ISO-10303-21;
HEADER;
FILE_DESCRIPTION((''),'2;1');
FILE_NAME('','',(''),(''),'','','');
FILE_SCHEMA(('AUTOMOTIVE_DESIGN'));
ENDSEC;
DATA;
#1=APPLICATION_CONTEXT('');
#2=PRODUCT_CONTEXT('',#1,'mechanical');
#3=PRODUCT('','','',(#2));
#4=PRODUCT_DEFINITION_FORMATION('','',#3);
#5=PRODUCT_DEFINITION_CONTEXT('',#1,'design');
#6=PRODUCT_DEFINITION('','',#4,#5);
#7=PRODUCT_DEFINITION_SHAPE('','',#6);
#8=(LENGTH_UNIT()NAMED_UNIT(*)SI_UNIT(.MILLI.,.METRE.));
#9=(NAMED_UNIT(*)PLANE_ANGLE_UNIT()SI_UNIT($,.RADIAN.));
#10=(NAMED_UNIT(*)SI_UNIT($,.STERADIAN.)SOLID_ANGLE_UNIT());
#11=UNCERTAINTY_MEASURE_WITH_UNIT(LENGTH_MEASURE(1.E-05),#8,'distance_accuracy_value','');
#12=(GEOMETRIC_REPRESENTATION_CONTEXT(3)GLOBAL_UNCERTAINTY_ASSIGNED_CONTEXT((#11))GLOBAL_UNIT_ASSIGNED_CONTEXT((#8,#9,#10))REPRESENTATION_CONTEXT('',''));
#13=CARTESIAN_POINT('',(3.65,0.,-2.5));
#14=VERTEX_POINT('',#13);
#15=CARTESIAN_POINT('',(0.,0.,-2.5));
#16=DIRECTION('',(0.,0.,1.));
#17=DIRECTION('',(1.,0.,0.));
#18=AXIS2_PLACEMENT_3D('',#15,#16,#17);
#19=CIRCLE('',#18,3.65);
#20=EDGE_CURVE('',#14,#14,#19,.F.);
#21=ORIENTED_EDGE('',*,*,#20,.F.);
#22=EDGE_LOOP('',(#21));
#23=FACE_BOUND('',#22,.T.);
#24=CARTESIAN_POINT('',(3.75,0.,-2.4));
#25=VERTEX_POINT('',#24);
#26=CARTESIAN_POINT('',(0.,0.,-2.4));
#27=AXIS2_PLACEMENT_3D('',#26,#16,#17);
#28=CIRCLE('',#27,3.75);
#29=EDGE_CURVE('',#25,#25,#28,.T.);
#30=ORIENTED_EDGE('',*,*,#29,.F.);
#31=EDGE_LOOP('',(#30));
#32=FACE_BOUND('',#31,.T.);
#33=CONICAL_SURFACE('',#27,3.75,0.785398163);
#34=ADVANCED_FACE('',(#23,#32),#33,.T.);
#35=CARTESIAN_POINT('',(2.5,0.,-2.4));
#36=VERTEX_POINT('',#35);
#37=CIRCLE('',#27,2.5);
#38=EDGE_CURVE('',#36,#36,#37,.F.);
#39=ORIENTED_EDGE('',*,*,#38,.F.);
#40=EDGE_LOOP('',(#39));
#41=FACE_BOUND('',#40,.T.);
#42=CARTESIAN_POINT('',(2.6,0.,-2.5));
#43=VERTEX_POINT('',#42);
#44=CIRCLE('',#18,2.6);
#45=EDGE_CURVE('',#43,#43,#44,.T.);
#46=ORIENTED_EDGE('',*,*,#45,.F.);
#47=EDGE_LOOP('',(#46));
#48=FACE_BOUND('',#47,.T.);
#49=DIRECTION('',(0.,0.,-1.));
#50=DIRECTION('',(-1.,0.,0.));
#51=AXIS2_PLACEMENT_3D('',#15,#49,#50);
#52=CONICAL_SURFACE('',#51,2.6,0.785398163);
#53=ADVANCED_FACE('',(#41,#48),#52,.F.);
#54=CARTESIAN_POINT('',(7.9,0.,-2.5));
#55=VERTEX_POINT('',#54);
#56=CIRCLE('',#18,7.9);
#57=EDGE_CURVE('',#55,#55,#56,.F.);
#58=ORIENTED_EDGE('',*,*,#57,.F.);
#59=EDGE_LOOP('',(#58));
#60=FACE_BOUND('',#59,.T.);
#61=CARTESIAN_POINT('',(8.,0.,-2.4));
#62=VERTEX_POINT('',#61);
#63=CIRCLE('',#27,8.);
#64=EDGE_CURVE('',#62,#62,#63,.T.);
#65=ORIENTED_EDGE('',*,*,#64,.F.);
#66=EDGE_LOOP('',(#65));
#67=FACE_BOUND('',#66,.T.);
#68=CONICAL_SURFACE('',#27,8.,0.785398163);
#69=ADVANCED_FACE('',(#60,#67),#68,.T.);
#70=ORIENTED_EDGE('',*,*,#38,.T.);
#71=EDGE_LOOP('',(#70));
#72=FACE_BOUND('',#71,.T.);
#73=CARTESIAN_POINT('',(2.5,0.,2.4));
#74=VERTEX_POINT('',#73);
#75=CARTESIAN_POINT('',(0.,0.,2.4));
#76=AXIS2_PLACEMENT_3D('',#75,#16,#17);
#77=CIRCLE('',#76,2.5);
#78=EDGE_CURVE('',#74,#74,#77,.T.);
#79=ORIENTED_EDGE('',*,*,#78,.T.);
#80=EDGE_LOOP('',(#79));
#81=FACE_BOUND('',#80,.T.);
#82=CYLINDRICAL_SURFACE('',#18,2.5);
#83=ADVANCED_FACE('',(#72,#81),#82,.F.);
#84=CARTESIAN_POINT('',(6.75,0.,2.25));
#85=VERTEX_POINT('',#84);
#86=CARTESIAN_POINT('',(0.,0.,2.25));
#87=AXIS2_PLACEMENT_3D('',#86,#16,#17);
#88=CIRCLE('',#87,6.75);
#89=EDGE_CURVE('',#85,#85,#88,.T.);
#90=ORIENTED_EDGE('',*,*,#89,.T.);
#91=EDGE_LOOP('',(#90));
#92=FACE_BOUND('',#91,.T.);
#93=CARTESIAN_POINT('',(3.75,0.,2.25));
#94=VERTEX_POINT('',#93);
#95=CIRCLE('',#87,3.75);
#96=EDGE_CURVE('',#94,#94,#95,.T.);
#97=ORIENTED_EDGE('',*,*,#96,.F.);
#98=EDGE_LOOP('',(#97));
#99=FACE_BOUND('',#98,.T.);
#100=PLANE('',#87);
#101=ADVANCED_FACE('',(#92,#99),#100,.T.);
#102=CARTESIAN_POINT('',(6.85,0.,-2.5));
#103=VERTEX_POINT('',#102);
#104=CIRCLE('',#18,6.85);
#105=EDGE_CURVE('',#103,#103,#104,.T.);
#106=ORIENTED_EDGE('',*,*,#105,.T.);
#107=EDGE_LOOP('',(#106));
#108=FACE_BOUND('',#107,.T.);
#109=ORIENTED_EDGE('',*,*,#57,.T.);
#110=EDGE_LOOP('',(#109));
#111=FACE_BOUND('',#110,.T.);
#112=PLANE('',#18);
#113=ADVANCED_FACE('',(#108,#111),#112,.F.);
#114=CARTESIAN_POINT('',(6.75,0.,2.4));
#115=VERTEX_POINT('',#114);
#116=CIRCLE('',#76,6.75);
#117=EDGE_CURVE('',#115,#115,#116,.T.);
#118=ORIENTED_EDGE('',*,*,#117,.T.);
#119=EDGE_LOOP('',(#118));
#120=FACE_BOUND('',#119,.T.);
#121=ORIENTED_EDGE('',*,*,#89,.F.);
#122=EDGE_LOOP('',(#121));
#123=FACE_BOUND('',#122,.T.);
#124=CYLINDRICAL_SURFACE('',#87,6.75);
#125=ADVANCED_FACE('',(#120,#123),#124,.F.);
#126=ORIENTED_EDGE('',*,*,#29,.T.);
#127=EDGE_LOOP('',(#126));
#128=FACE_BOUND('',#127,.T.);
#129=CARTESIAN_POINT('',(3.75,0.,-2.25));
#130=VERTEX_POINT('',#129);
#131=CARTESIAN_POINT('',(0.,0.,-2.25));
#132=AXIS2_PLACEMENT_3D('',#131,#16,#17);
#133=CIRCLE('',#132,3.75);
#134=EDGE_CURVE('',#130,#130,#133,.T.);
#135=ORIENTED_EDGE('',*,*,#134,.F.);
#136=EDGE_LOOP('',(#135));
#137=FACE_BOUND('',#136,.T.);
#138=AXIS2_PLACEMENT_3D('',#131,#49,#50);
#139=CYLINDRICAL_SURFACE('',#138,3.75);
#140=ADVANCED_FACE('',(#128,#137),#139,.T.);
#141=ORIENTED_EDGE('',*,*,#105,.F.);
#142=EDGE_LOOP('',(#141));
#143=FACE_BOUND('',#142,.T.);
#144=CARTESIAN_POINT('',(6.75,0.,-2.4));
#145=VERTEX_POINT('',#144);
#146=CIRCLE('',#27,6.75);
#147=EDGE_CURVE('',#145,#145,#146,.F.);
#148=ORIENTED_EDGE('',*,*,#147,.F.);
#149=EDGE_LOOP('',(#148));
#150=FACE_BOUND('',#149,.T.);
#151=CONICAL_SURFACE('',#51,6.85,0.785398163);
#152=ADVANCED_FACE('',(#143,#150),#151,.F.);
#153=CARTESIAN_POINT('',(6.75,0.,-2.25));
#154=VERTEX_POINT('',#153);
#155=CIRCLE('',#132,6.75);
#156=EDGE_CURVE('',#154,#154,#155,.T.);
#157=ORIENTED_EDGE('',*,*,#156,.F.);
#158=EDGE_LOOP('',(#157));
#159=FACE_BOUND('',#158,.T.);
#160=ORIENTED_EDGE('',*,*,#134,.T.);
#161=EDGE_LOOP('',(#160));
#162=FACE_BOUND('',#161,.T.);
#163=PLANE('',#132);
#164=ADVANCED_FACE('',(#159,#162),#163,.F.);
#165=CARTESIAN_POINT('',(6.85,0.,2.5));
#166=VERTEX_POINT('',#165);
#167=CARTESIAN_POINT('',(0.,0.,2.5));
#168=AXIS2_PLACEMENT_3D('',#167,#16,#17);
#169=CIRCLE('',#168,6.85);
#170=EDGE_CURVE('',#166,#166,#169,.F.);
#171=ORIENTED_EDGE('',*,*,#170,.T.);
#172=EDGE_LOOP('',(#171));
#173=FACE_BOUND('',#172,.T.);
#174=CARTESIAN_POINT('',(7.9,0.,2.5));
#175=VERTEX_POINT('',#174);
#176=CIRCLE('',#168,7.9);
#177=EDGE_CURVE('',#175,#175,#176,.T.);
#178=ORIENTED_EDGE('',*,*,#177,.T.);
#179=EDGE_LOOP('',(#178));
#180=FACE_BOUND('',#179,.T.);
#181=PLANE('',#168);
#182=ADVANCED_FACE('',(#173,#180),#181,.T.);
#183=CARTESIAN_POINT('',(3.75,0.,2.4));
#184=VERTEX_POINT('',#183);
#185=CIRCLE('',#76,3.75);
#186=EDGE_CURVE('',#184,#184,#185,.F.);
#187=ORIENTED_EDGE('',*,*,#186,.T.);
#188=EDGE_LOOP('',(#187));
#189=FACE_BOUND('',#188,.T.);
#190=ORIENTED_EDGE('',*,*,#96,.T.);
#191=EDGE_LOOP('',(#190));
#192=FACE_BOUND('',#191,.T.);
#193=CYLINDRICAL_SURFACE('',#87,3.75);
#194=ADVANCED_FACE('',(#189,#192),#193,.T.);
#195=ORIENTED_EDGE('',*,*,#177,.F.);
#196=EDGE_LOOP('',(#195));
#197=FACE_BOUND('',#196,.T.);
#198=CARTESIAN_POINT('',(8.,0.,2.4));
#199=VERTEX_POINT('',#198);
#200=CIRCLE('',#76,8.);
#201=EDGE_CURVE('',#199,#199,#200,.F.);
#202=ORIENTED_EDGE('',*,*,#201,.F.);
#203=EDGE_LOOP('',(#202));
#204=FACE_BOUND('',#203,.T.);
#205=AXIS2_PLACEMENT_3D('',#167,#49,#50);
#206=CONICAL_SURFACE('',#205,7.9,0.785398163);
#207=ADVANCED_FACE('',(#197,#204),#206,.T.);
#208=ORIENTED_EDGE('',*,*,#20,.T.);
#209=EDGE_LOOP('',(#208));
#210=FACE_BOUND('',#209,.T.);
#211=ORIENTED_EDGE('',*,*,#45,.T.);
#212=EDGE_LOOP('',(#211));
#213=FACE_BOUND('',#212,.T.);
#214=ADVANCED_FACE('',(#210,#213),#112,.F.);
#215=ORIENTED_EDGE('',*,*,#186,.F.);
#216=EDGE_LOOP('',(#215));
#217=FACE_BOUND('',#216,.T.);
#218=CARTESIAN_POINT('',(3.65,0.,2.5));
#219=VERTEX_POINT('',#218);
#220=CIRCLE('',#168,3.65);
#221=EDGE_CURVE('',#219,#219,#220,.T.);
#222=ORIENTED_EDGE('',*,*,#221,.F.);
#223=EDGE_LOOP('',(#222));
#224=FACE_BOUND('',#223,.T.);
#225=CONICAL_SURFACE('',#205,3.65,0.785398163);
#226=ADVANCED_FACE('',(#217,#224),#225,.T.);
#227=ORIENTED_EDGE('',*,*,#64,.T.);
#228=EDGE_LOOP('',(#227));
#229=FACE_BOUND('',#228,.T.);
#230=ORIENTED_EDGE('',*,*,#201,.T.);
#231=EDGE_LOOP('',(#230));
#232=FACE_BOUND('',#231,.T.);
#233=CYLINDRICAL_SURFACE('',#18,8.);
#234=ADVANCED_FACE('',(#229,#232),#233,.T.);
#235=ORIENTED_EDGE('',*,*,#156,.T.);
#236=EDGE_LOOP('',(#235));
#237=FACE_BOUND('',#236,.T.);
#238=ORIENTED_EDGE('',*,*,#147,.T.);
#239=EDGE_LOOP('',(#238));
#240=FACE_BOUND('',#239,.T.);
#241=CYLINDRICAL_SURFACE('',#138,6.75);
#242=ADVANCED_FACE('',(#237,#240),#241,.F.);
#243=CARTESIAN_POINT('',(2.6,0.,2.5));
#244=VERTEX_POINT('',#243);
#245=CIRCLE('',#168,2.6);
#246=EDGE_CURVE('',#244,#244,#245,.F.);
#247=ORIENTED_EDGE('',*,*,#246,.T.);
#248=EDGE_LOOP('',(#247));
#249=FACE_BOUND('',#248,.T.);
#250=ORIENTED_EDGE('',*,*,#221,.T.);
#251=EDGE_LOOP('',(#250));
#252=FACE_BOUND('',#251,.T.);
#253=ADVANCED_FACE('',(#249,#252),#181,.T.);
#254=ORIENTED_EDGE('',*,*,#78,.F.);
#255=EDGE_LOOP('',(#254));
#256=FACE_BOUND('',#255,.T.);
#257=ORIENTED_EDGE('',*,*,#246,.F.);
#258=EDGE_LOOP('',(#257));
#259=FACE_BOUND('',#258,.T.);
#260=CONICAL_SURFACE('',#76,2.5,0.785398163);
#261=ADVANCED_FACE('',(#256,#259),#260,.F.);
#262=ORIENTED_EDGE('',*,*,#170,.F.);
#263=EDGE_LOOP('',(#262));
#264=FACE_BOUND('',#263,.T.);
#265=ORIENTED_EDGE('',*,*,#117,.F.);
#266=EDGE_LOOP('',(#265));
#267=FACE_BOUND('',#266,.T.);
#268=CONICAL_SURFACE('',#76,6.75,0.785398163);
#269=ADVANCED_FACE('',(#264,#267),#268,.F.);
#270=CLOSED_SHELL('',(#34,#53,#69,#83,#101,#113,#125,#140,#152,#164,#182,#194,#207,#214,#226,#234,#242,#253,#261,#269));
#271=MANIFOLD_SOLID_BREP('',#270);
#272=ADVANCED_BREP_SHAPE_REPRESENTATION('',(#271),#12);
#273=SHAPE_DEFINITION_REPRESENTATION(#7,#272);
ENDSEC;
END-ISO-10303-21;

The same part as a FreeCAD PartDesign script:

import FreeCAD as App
import Part
import Sketcher

V = App.Vector
Q = App.Units.Quantity


def edges_at(feature, points):
    """Names of the edges that pass closest to the given points."""
    edges = feature.Shape.Edges
    near = lambda p: min(range(len(edges)), key=lambda i: edges[i].distToShape(Part.Vertex(*p))[0])
    return sorted({f"Edge{near(p) + 1}" for p in points})

doc = App.newDocument("Part")
params = doc.addObject("Spreadsheet::Sheet", "Params")
for row, (alias, value) in enumerate([
    ("sketch1_diameter", "16 mm"),
    ("sketch1_diameter2", "5 mm"),
    ("pad1_length", "2.5 mm"),
    ("pad1_length2", "2.5 mm"),
    ("sketch2_diameter", "13.5 mm"),
    ("sketch2_diameter2", "7.5 mm"),
    ("pocket1_length", "0.25 mm"),
    ("sketch3_diameter", "13.5 mm"),
    ("sketch3_diameter2", "7.5 mm"),
    ("pocket2_length", "0.25 mm"),
    ("chamfer_size", "0.1 mm"),
], start=1):
    params.set(f"A{row}", alias)
    params.set(f"B{row}", "=" + value)
    params.setAlias(f"B{row}", alias)

body = doc.addObject("PartDesign::Body", "Body")

sketch1 = body.newObject("Sketcher::SketchObject", "Sketch")
sketch1.AttachmentSupport = (doc.getObject("XY_Plane"), [""])
sketch1.MapMode = "FlatFace"
sketch1.addGeometry([
    Part.Circle(V(0, 0, 0), V(0, 0, 1), 8),
    Part.Circle(V(0, 0, 0), V(0, 0, 1), 2.5),
], False)
sketch1.addConstraint([
    Sketcher.Constraint("Coincident", 0, 3, -1, 1),
    Sketcher.Constraint("Coincident", 1, 3, -1, 1),
    Sketcher.Constraint("Diameter", 0, Q("16 mm")),
    Sketcher.Constraint("Diameter", 1, Q("5 mm")),
])
sketch1.setExpression("Constraints[2]", "Params.sketch1_diameter")
sketch1.setExpression("Constraints[3]", "Params.sketch1_diameter2")
pad1 = body.newObject("PartDesign::Pad", "Pad")
pad1.Profile = sketch1
pad1.Type = "TwoLengths"
pad1.setExpression("Length", "Params.pad1_length")
pad1.setExpression("Length2", "Params.pad1_length2")

sketch2 = body.newObject("Sketcher::SketchObject", "Sketch001")
sketch2.AttachmentSupport = (doc.getObject("XY_Plane"), [""])
sketch2.MapMode = "FlatFace"
sketch2.AttachmentOffset = App.Placement(V(0, 0, -2.5), App.Rotation())
sketch2.addGeometry([
    Part.Circle(V(0, 0, 0), V(0, 0, 1), 6.8),
    Part.Circle(V(0, 0, 0), V(0, 0, 1), 3.8),
], False)
sketch2.addConstraint([
    Sketcher.Constraint("Coincident", 0, 3, -1, 1),
    Sketcher.Constraint("Coincident", 1, 3, -1, 1),
    Sketcher.Constraint("Diameter", 0, Q("13.5 mm")),
    Sketcher.Constraint("Diameter", 1, Q("7.5 mm")),
])
sketch2.setExpression("Constraints[2]", "Params.sketch2_diameter")
sketch2.setExpression("Constraints[3]", "Params.sketch2_diameter2")
pocket1 = body.newObject("PartDesign::Pocket", "Pocket")
pocket1.Profile = sketch2
pocket1.setExpression("Length", "Params.pocket1_length")
pocket1.Reversed = True

sketch3 = body.newObject("Sketcher::SketchObject", "Sketch002")
sketch3.AttachmentSupport = (doc.getObject("XY_Plane"), [""])
sketch3.MapMode = "FlatFace"
sketch3.AttachmentOffset = App.Placement(V(0, 0, 2.5), App.Rotation())
sketch3.addGeometry([
    Part.Circle(V(0, 0, 0), V(0, 0, 1), 6.8),
    Part.Circle(V(0, 0, 0), V(0, 0, 1), 3.8),
], False)
sketch3.addConstraint([
    Sketcher.Constraint("Coincident", 0, 3, -1, 1),
    Sketcher.Constraint("Coincident", 1, 3, -1, 1),
    Sketcher.Constraint("Diameter", 0, Q("13.5 mm")),
    Sketcher.Constraint("Diameter", 1, Q("7.5 mm")),
])
sketch3.setExpression("Constraints[2]", "Params.sketch3_diameter")
sketch3.setExpression("Constraints[3]", "Params.sketch3_diameter2")
pocket2 = body.newObject("PartDesign::Pocket", "Pocket001")
pocket2.Profile = sketch3
pocket2.setExpression("Length", "Params.pocket2_length")
doc.recompute()

chamfer = body.newObject("PartDesign::Chamfer", "Chamfer")
chamfer.Base = (pocket2, edges_at(pocket2, [
    (-3.75, 0, -2.5),
    (-6.75, 0, -2.5),
    (-6.75, 0, 2.5),
    (-3.75, 0, 2.5),
    (-8, 0, -2.5),
    (-2.5, 0, -2.5),
    (-8, 0, 2.5),
    (-2.5, 0, 2.5),
]))
chamfer.setExpression("Size", "Params.chamfer_size")

doc.recompute()
